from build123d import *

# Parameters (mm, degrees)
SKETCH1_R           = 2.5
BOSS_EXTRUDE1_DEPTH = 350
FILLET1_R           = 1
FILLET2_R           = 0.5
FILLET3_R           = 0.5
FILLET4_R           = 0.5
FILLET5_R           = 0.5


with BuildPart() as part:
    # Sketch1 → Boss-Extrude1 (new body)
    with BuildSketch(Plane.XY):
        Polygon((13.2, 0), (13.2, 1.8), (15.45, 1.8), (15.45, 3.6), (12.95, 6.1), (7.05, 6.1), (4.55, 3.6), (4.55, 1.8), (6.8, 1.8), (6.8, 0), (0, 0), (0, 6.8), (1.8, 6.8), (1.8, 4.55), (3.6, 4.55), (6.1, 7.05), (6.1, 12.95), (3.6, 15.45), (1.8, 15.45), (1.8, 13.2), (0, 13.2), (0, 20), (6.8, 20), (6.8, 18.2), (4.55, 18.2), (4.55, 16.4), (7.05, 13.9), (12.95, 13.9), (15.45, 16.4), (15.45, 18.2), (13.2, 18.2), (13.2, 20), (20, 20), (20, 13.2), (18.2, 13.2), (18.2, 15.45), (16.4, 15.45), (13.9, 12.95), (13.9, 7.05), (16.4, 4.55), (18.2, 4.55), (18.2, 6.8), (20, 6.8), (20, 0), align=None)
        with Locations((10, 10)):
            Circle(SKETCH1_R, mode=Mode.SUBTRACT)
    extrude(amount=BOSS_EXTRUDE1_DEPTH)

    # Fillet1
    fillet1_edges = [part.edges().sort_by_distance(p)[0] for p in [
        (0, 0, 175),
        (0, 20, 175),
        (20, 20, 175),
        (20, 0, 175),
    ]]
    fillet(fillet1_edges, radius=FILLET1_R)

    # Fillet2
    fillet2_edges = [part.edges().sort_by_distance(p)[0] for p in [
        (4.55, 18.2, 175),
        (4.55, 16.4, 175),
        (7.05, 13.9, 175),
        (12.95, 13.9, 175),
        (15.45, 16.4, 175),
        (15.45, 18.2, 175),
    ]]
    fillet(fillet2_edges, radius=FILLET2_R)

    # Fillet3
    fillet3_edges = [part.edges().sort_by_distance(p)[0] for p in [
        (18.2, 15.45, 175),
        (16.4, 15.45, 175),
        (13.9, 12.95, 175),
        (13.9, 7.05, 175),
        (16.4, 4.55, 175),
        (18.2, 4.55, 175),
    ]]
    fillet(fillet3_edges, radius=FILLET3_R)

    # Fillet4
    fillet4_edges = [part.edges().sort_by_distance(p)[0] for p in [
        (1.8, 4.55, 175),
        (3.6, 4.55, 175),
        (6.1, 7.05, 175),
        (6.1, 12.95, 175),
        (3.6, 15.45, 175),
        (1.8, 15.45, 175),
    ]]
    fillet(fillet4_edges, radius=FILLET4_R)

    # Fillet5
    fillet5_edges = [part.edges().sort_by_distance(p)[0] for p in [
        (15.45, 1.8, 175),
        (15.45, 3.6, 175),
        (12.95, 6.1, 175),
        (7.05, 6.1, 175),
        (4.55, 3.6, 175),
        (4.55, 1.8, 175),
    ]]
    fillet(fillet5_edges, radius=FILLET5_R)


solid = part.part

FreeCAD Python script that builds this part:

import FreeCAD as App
import Part
import Sketcher

V = App.Vector
Q = App.Units.Quantity


def edges_at(feature, points):
    """Names of the edges that pass closest to the given points."""
    edges = feature.Shape.Edges
    near = lambda p: min(range(len(edges)), key=lambda i: edges[i].distToShape(Part.Vertex(*p))[0])
    return sorted({f"Edge{near(p) + 1}" for p in points})


def add_polygon(sketch, points):
    """Adds a closed chain of lines whose ends are joined by coincident constraints."""
    first, n = sketch.GeometryCount, len(points)
    for a, b in zip(points, points[1:] + points[:1]):
        sketch.addGeometry(Part.LineSegment(App.Vector(*a, 0), App.Vector(*b, 0)), False)
    for i in range(n):
        sketch.addConstraint(Sketcher.Constraint("Coincident", first + i, 2, first + (i + 1) % n, 1))

doc = App.newDocument("Part")
body = doc.addObject("PartDesign::Body", "Body")

# Sketch on XY plane
sketch1 = body.newObject("Sketcher::SketchObject", "Sketch")
sketch1.AttachmentSupport = (doc.getObject("XY_Plane"), [""])
sketch1.MapMode = "FlatFace"
add_polygon(sketch1, [(13.2, 1.8), (13.2, 0), (20, 0), (20, 6.8), (18.2, 6.8), (18.2, 4.5), (16.4, 4.5), (13.9, 7), (13.9, 12.9), (16.4, 15.4), (18.2, 15.4), (18.2, 13.2), (20, 13.2), (20, 20), (13.2, 20), (13.2, 18.2), (15.4, 18.2), (15.4, 16.4), (12.9, 13.9), (7, 13.9), (4.5, 16.4), (4.5, 18.2), (6.8, 18.2), (6.8, 20), (0, 20), (0, 13.2), (1.8, 13.2), (1.8, 15.4), (3.6, 15.4), (6.1, 12.9), (6.1, 7), (3.6, 4.5), (1.8, 4.5), (1.8, 6.8), (0, 6.8), (0, 0), (6.8, 0), (6.8, 1.8), (4.5, 1.8), (4.5, 3.6), (7, 6.1), (12.9, 6.1), (15.4, 3.6), (15.4, 1.8)])  # lines 0-43
sketch1.addGeometry(Part.Circle(V(10, 10, 0), V(0, 0, 1), 2.5), False)  # 44
sketch1.addConstraint(Sketcher.Constraint("Vertical", 0))
sketch1.addConstraint(Sketcher.Constraint("Horizontal", 1))
sketch1.addConstraint(Sketcher.Constraint("Vertical", 2))
sketch1.addConstraint(Sketcher.Constraint("Horizontal", 3))
sketch1.addConstraint(Sketcher.Constraint("Vertical", 4))
sketch1.addConstraint(Sketcher.Constraint("Horizontal", 5))
sketch1.addConstraint(Sketcher.Constraint("Vertical", 7))
sketch1.addConstraint(Sketcher.Constraint("Horizontal", 9))
sketch1.addConstraint(Sketcher.Constraint("Vertical", 10))
sketch1.addConstraint(Sketcher.Constraint("Horizontal", 11))
sketch1.addConstraint(Sketcher.Constraint("Vertical", 12))
sketch1.addConstraint(Sketcher.Constraint("Horizontal", 13))
sketch1.addConstraint(Sketcher.Constraint("Vertical", 14))
sketch1.addConstraint(Sketcher.Constraint("Horizontal", 15))
sketch1.addConstraint(Sketcher.Constraint("Vertical", 16))
sketch1.addConstraint(Sketcher.Constraint("Horizontal", 18))
sketch1.addConstraint(Sketcher.Constraint("Vertical", 20))
sketch1.addConstraint(Sketcher.Constraint("Horizontal", 21))
sketch1.addConstraint(Sketcher.Constraint("Vertical", 22))
sketch1.addConstraint(Sketcher.Constraint("Horizontal", 23))
sketch1.addConstraint(Sketcher.Constraint("Vertical", 24))
sketch1.addConstraint(Sketcher.Constraint("Horizontal", 25))
sketch1.addConstraint(Sketcher.Constraint("Vertical", 26))
sketch1.addConstraint(Sketcher.Constraint("Horizontal", 27))
sketch1.addConstraint(Sketcher.Constraint("Vertical", 29))
sketch1.addConstraint(Sketcher.Constraint("Horizontal", 31))
sketch1.addConstraint(Sketcher.Constraint("Vertical", 32))
sketch1.addConstraint(Sketcher.Constraint("Horizontal", 33))
sketch1.addConstraint(Sketcher.Constraint("Vertical", 34))
sketch1.addConstraint(Sketcher.Constraint("Horizontal", 35))
sketch1.addConstraint(Sketcher.Constraint("Vertical", 36))
sketch1.addConstraint(Sketcher.Constraint("Horizontal", 37))
sketch1.addConstraint(Sketcher.Constraint("Vertical", 38))
sketch1.addConstraint(Sketcher.Constraint("Horizontal", 40))
sketch1.addConstraint(Sketcher.Constraint("Vertical", 42))
sketch1.addConstraint(Sketcher.Constraint("Horizontal", 43))
sketch1.addConstraint(Sketcher.Constraint("Coincident", 34, 2, -1, 1))
sketch1.addConstraint(Sketcher.Constraint("PointOnObject", 0, 2, -1))
sketch1.addConstraint(Sketcher.Constraint("PointOnObject", 23, 2, -2))
sketch1.addConstraint(Sketcher.Constraint("Perpendicular", 6, 8))
sketch1.addConstraint(Sketcher.Constraint("Parallel", 8, 17))
sketch1.addConstraint(Sketcher.Constraint("Perpendicular", 17, 19))
sketch1.addConstraint(Sketcher.Constraint("Parallel", 19, 28))
sketch1.addConstraint(Sketcher.Constraint("Perpendicular", 28, 30))
sketch1.addConstraint(Sketcher.Constraint("Parallel", 30, 39))
sketch1.addConstraint(Sketcher.Constraint("Perpendicular", 39, 41))
sketch1.addConstraint(Sketcher.Constraint("Horizontal", 16, 2, 19, 2))
sketch1.addConstraint(Sketcher.Constraint("Horizontal", 15, 2, 20, 2))
sketch1.addConstraint(Sketcher.Constraint("Horizontal", 13, 2, 22, 2))
sketch1.addConstraint(Sketcher.Constraint("Horizontal", 11, 2, 24, 2))
sketch1.addConstraint(Sketcher.Constraint("Horizontal", 9, 2, 26, 2))
sketch1.addConstraint(Sketcher.Constraint("Horizontal", 7, 2, 28, 2))
sketch1.addConstraint(Sketcher.Constraint("Horizontal", 6, 2, 29, 2))
sketch1.addConstraint(Sketcher.Constraint("Horizontal", 5, 2, 30, 2))
sketch1.addConstraint(Sketcher.Constraint("Horizontal", 3, 2, 32, 2))
sketch1.addConstraint(Sketcher.Constraint("Horizontal", 38, 2, 41, 2))
sketch1.addConstraint(Sketcher.Constraint("Horizontal", 37, 2, 42, 2))
sketch1.addConstraint(Sketcher.Constraint("Vertical", 5, 2, 8, 2))
sketch1.addConstraint(Sketcher.Constraint("Vertical", 4, 2, 9, 2))
sketch1.addConstraint(Sketcher.Constraint("Vertical", 2, 2, 11, 2))
sketch1.addConstraint(Sketcher.Constraint("Vertical", 0, 2, 13, 2))
sketch1.addConstraint(Sketcher.Constraint("Vertical", 27, 2, 30, 2))
sketch1.addConstraint(Sketcher.Constraint("Vertical", 26, 2, 31, 2))
sketch1.addConstraint(Sketcher.Constraint("Vertical", 22, 2, 35, 2))
sketch1.addConstraint(Sketcher.Constraint("Vertical", 20, 2, 37, 2))
sketch1.addConstraint(Sketcher.Constraint("Vertical", 18, 2, 39, 2))
sketch1.addConstraint(Sketcher.Constraint("Vertical", 17, 2, 40, 2))
sketch1.addConstraint(Sketcher.Constraint("Equal", 3, 5))
sketch1.addConstraint(Sketcher.Constraint("Equal", 15, 21))
sketch1.addConstraint(Sketcher.Constraint("Equal", 13, 23))
sketch1.addConstraint(Sketcher.Constraint("Equal", 11, 25))
sketch1.addConstraint(Sketcher.Constraint("Equal", 25, 27))
sketch1.addConstraint(Sketcher.Constraint("Equal", 33, 0))
sketch1.addConstraint(Sketcher.Constraint("Equal", 35, 2))
sketch1.addConstraint(Sketcher.Constraint("Equal", 43, 4))
sketch1.addConstraint(Sketcher.Constraint("Equal", 40, 7))
sketch1.addConstraint(Sketcher.Constraint("Equal", 4, 10))
sketch1.addConstraint(Sketcher.Constraint("Equal", 2, 12))
sketch1.addConstraint(Sketcher.Constraint("Equal", 0, 14))
sketch1.addConstraint(Sketcher.Constraint("Equal", 14, 16))
sketch1.addConstraint(Sketcher.Constraint("Equal", 36, 38))
sketch1.addConstraint(Sketcher.Constraint("Equal", 8, 17))
sketch1.addConstraint(Sketcher.Constraint("Diameter", 44, Q("5 mm")))
sketch1.addConstraint(Sketcher.Constraint("DistanceX", 1, 1, 1, 2, Q("6.8 mm")))
sketch1.addConstraint(Sketcher.Constraint("DistanceX", 3, 2, 3, 1, Q("1.8 mm")))
sketch1.addConstraint(Sketcher.Constraint("DistanceX", 18, 2, 18, 1, Q("5.9 mm")))
sketch1.addConstraint(Sketcher.Constraint("DistanceX", -1, 1, 44, 3, Q("10 mm")))
sketch1.addConstraint(Sketcher.Constraint("DistanceY", -1, 1, 44, 3, Q("10 mm")))
sketch1.addConstraint(Sketcher.Constraint("DistanceX", -1, 1, 1, 2, Q("20 mm")))
sketch1.addConstraint(Sketcher.Constraint("DistanceX", 15, 1, 15, 2, Q("2.25 mm")))
pad1 = body.newObject("PartDesign::Pad", "Pad")
pad1.Profile = sketch1
pad1.Length = 350
doc.recompute()

fillet = body.newObject("PartDesign::Fillet", "Fillet")
fillet.Base = (pad1, edges_at(pad1, [
    (0, 0, 175),
    (0, 20, 175),
    (20, 20, 175),
    (20, 0, 175),
]))
fillet.Radius = 1
doc.recompute()

fillet2 = body.newObject("PartDesign::Fillet", "Fillet001")
fillet2.Base = (fillet, edges_at(fillet, [
    (4.55, 18.2, 175),
    (4.55, 16.4, 175),
    (7.05, 13.9, 175),
    (12.95, 13.9, 175),
    (15.45, 16.4, 175),
    (15.45, 18.2, 175),
]))
fillet2.Radius = 0.5
doc.recompute()

fillet3 = body.newObject("PartDesign::Fillet", "Fillet002")
fillet3.Base = (fillet2, edges_at(fillet2, [
    (18.2, 15.45, 175),
    (16.4, 15.45, 175),
    (13.9, 12.95, 175),
    (13.9, 7.05, 175),
    (16.4, 4.55, 175),
    (18.2, 4.55, 175),
]))
fillet3.Radius = 0.5
doc.recompute()

fillet4 = body.newObject("PartDesign::Fillet", "Fillet003")
fillet4.Base = (fillet3, edges_at(fillet3, [
    (1.8, 4.55, 175),
    (3.6, 4.55, 175),
    (6.1, 7.05, 175),
    (6.1, 12.95, 175),
    (3.6, 15.45, 175),
    (1.8, 15.45, 175),
]))
fillet4.Radius = 0.5
doc.recompute()

fillet5 = body.newObject("PartDesign::Fillet", "Fillet004")
fillet5.Base = (fillet4, edges_at(fillet4, [
    (15.45, 1.8, 175),
    (15.45, 3.6, 175),
    (12.95, 6.1, 175),
    (7.05, 6.1, 175),
    (4.55, 3.6, 175),
    (4.55, 1.8, 175),
]))
fillet5.Radius = 0.5

doc.recompute()
